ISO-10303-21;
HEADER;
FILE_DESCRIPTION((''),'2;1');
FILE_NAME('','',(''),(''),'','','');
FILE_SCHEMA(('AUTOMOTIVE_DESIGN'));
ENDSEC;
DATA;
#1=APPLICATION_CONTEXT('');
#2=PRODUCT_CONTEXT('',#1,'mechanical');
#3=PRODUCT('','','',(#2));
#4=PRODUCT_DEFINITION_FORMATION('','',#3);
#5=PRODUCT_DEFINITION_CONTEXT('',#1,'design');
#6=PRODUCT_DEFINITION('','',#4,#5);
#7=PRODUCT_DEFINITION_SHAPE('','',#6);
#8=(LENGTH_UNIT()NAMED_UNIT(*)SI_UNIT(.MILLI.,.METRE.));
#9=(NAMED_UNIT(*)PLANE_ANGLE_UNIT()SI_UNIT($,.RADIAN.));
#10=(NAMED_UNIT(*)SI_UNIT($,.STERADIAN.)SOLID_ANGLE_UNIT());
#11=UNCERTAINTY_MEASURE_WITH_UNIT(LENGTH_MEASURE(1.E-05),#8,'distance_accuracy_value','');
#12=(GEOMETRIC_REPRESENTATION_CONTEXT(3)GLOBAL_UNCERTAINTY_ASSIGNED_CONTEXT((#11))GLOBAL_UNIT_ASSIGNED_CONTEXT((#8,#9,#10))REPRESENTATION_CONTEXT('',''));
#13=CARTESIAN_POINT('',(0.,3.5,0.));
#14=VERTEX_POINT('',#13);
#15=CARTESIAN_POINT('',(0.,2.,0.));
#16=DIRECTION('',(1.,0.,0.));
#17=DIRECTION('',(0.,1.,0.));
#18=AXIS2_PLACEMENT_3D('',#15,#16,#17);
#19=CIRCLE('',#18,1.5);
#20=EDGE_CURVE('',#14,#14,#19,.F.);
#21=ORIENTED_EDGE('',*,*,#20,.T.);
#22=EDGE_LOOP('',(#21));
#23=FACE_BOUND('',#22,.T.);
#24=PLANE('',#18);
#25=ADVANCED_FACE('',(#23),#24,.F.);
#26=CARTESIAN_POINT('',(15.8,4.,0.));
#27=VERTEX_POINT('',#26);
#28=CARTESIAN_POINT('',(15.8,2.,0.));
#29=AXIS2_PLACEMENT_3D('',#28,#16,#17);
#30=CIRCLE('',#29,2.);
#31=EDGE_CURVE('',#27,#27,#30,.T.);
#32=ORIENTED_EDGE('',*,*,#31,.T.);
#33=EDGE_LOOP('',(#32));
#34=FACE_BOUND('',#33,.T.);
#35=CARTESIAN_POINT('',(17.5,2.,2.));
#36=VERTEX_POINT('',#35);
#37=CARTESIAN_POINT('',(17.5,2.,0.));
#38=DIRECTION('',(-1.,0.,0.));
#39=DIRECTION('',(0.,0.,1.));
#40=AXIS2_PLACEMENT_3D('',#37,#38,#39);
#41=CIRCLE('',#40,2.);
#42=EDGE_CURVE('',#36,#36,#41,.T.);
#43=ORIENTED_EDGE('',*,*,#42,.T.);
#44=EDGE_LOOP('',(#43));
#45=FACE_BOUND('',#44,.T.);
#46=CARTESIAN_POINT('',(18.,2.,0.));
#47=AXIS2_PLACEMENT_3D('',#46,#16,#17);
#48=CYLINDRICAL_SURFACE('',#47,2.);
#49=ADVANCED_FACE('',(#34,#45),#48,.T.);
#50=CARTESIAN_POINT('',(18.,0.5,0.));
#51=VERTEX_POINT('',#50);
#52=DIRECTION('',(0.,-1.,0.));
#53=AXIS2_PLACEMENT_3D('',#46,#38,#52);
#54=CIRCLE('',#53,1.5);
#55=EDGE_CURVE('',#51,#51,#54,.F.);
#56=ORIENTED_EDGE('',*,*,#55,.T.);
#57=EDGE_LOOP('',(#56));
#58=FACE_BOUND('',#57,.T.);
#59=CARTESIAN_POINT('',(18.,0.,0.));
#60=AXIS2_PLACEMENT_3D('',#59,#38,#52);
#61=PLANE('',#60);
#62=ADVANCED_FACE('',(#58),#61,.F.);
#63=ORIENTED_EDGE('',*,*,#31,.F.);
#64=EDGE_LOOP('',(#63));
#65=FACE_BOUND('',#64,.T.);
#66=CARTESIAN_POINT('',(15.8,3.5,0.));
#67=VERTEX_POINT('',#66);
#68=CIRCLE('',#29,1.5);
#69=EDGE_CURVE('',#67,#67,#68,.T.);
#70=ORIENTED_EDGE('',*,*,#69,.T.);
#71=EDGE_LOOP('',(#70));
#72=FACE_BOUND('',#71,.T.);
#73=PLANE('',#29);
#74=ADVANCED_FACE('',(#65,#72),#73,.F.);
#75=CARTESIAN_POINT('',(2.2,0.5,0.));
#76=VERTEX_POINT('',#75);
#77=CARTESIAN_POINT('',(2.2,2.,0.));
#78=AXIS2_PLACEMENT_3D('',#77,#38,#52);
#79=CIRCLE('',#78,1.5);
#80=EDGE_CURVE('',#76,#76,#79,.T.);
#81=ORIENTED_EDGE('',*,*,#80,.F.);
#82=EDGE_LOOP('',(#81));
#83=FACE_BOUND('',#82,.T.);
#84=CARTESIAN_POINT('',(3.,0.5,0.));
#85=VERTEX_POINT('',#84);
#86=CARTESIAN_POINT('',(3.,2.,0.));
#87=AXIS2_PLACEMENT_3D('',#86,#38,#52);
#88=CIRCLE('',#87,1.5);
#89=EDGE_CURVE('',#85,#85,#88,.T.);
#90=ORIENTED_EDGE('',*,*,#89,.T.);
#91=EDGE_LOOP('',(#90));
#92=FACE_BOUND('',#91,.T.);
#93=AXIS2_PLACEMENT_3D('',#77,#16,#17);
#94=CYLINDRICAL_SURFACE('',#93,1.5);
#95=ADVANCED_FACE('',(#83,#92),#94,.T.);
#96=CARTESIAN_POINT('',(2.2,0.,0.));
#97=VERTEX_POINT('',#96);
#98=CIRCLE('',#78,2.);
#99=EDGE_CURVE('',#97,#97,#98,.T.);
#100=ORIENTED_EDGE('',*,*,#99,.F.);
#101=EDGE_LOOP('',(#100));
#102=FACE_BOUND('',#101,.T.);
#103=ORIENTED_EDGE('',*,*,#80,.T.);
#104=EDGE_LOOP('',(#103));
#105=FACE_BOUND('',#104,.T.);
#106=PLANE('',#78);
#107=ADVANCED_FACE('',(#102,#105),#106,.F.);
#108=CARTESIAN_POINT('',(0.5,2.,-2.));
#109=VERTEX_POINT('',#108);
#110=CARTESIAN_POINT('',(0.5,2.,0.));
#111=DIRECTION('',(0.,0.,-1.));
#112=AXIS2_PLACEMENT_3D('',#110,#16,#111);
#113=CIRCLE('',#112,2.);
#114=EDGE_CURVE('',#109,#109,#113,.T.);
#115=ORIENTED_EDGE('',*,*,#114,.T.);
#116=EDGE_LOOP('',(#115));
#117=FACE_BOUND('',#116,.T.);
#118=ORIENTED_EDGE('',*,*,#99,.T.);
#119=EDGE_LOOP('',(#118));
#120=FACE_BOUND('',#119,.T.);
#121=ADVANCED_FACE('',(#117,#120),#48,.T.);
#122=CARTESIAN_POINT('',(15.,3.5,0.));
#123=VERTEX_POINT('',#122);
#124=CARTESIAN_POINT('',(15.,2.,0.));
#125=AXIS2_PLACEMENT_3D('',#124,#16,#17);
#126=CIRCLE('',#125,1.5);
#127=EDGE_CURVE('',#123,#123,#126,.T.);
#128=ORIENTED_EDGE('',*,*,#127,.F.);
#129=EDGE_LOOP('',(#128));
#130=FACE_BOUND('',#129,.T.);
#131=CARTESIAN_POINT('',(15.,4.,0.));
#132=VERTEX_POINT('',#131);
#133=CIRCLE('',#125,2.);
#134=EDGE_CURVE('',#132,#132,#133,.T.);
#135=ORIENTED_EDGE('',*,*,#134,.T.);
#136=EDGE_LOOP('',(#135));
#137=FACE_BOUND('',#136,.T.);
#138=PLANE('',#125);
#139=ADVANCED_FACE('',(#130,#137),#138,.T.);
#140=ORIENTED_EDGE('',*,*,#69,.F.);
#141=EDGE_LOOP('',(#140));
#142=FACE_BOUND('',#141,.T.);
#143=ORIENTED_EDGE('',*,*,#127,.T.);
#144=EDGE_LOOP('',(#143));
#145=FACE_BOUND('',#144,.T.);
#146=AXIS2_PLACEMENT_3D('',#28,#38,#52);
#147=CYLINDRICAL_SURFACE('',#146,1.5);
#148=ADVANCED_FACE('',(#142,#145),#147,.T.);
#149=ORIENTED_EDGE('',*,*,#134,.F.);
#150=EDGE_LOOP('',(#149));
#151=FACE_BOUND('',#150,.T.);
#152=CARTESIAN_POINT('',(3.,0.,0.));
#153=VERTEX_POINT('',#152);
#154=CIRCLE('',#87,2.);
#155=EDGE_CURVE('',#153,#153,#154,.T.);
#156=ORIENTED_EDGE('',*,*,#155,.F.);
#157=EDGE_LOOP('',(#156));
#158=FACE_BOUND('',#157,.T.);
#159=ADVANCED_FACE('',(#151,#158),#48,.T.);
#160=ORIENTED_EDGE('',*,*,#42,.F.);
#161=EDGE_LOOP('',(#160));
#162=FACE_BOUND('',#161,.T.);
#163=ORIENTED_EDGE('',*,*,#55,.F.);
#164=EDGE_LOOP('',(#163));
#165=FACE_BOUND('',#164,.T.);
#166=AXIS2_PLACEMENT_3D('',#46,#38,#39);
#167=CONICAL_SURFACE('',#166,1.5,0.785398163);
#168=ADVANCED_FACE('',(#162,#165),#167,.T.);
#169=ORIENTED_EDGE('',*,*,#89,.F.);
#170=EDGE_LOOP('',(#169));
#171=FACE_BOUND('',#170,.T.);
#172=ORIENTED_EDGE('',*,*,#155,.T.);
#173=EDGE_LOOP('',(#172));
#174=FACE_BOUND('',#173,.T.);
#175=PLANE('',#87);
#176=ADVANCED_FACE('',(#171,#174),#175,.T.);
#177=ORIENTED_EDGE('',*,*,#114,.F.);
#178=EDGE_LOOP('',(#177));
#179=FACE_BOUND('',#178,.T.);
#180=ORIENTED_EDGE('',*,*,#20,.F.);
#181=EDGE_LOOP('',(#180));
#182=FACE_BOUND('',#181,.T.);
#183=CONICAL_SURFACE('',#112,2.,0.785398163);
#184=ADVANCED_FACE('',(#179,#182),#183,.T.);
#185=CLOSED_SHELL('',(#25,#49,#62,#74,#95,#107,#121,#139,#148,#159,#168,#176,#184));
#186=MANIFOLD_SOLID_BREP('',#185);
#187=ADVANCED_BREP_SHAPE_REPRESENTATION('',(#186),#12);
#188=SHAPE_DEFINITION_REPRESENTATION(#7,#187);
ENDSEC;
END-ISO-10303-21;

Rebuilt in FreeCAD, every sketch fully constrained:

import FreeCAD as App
import Part
import Sketcher
from FreeCAD import Vector


def edges_at(feature, points):
    """Names of the edges that pass closest to the given points."""
    edges = feature.Shape.Edges
    near = lambda p: min(range(len(edges)), key=lambda i: edges[i].distToShape(Part.Vertex(*p))[0])
    return sorted({f"Edge{near(p) + 1}" for p in points})


def add_polygon(sketch, points):
    """Adds a closed chain of lines whose ends are joined by coincident constraints."""
    first, n = sketch.GeometryCount, len(points)
    for a, b in zip(points, points[1:] + points[:1]):
        sketch.addGeometry(Part.LineSegment(App.Vector(*a, 0), App.Vector(*b, 0)), False)
    for i in range(n):
        sketch.addConstraint(Sketcher.Constraint("Coincident", first + i, 2, first + (i + 1) % n, 1))

doc = App.newDocument("Part")
body = doc.addObject("PartDesign::Body", "Body")

# Sketch on XY plane
sketch1 = body.newObject("Sketcher::SketchObject", "Sketch")
sketch1.AttachmentSupport = (doc.getObject("XY_Plane"), [""])
sketch1.MapMode = "FlatFace"
add_polygon(sketch1, [(0, 2), (0, 0), (18, 0), (18, 2)])  # lines 0-3
sketch1.addGeometry(Part.LineSegment(Vector(18, 2, 0), Vector(0, 2, 0)), True)  # axis
sketch1.addConstraint(Sketcher.Constraint("Vertical", 0))
sketch1.addConstraint(Sketcher.Constraint("Horizontal", 1))
sketch1.addConstraint(Sketcher.Constraint("Vertical", 2))
sketch1.addConstraint(Sketcher.Constraint("Horizontal", 3))
sketch1.addConstraint(Sketcher.Constraint("Horizontal", 4))
sketch1.addConstraint(Sketcher.Constraint("Coincident", 0, 2, -1, 1))
sketch1.addConstraint(Sketcher.Constraint("Coincident", 4, 1, 2, 2))
sketch1.addConstraint(Sketcher.Constraint("PointOnObject", 4, 2, -2))
sketch1.addConstraint(Sketcher.Constraint("DistanceX", 1, 1, 1, 2, 18.0))
sketch1.addConstraint(Sketcher.Constraint("DistanceY", 0, 2, 0, 1, 2.0))
revolution = body.newObject("PartDesign::Revolution", "Revolution")
revolution.Profile = sketch1
revolution.ReferenceAxis = (sketch1, ["Axis0"])
revolution.Angle = 360

# Sketch on YZ plane
sketch2 = body.newObject("Sketcher::SketchObject", "Sketch001")
sketch2.AttachmentSupport = (doc.getObject("YZ_Plane"), [""])
sketch2.MapMode = "FlatFace"
sketch2.AttachmentOffset = App.Placement(Vector(0, 0, 3), App.Rotation())
sketch2.addGeometry(Part.Circle(Vector(2, 0, 0), Vector(0, 0, 1), 2), False)
sketch2.addGeometry(Part.Circle(Vector(2, 0, 0), Vector(0, 0, 1), 1.5), False)
sketch2.addConstraint(Sketcher.Constraint("Coincident", 1, 3, 0, 3))
sketch2.addConstraint(Sketcher.Constraint("PointOnObject", 0, 3, -1))
sketch2.addConstraint(Sketcher.Constraint("Diameter", 0, 4.0))
sketch2.addConstraint(Sketcher.Constraint("Diameter", 1, 3.0))
sketch2.addConstraint(Sketcher.Constraint("DistanceX", -1, 1, 0, 3, 2.0))
pocket1 = body.newObject("PartDesign::Pocket", "Pocket")
pocket1.Profile = sketch2
pocket1.Length = 0.8

# Sketch on YZ plane
sketch3 = body.newObject("Sketcher::SketchObject", "Sketch002")
sketch3.AttachmentSupport = (doc.getObject("YZ_Plane"), [""])
sketch3.MapMode = "FlatFace"
sketch3.AttachmentOffset = App.Placement(Vector(0, 0, 15), App.Rotation())
sketch3.addGeometry(Part.Circle(Vector(2, 0, 0), Vector(0, 0, 1), 2), False)
sketch3.addGeometry(Part.Circle(Vector(2, 0, 0), Vector(0, 0, 1), 1.5), False)
sketch3.addConstraint(Sketcher.Constraint("Coincident", 1, 3, 0, 3))
sketch3.addConstraint(Sketcher.Constraint("PointOnObject", 0, 3, -1))
sketch3.addConstraint(Sketcher.Constraint("Diameter", 0, 4.0))
sketch3.addConstraint(Sketcher.Constraint("Diameter", 1, 3.0))
sketch3.addConstraint(Sketcher.Constraint("DistanceX", -1, 1, 0, 3, 2.0))
pocket2 = body.newObject("PartDesign::Pocket", "Pocket001")
pocket2.Profile = sketch3
pocket2.Length = 0.8
pocket2.Reversed = True
doc.recompute()

chamfer = body.newObject("PartDesign::Chamfer", "Chamfer")
chamfer.Base = (pocket2, edges_at(pocket2, [(18, 4, 0), (0, 4, 0)]))
chamfer.Size = 0.5

doc.recompute()
